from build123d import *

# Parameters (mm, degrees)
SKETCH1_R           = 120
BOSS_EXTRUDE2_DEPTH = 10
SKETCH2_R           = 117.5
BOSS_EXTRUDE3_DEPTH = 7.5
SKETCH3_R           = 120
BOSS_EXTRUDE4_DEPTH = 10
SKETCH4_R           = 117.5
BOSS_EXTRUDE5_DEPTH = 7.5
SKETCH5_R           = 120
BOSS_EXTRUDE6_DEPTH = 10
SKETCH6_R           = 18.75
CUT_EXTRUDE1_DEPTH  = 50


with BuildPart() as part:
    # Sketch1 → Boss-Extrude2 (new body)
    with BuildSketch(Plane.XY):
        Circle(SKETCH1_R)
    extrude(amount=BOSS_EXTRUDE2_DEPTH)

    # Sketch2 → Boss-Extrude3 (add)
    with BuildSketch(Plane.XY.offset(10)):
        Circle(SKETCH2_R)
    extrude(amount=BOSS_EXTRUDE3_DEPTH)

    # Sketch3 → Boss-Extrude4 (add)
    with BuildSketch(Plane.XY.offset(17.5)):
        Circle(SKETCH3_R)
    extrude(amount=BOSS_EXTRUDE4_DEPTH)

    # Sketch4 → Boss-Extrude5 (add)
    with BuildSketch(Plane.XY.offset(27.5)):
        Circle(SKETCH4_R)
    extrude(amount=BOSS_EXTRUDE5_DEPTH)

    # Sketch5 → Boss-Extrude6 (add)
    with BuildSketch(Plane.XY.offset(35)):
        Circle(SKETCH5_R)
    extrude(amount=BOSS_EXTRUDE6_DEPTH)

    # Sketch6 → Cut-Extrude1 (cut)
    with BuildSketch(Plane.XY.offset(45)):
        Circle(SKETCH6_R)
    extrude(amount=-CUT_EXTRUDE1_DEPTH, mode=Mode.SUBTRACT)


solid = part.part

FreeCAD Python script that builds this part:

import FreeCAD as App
import Part
import Sketcher
from FreeCAD import Vector
Q = App.Units.Quantity

doc = App.newDocument("Part")
params = doc.addObject("Spreadsheet::Sheet", "Params")
for row, (alias, value) in enumerate([
    ("sketch1_diameter", "240 mm"),
    ("pad1_length", "10 mm"),
    ("sketch2_diameter", "235 mm"),
    ("pad2_length", "7.5 mm"),
    ("sketch3_diameter", "240 mm"),
    ("pad3_length", "10 mm"),
    ("sketch4_diameter", "235 mm"),
    ("pad4_length", "7.5 mm"),
    ("sketch5_diameter", "240 mm"),
    ("pad5_length", "10 mm"),
    ("sketch6_diameter", "37.5 mm"),
    ("pocket1_length", "50 mm"),
], start=1):
    params.set(f"A{row}", alias)
    params.set(f"B{row}", "=" + value)
    params.setAlias(f"B{row}", alias)

body = doc.addObject("PartDesign::Body", "Body")

# Sketch on XY plane
sketch1 = body.newObject("Sketcher::SketchObject", "Sketch")
sketch1.AttachmentSupport = (doc.getObject("XY_Plane"), [""])
sketch1.MapMode = "FlatFace"
sketch1.addGeometry(Part.Circle(Vector(0, 0, 0), Vector(0, 0, 1), 120), False)
sketch1.addConstraint(Sketcher.Constraint("Coincident", 0, 3, -1, 1))
sketch1.addConstraint(Sketcher.Constraint("Diameter", 0, Q("240 mm")))
sketch1.setExpression("Constraints[1]", "Params.sketch1_diameter")
pad1 = body.newObject("PartDesign::Pad", "Pad")
pad1.Profile = sketch1
pad1.setExpression("Length", "Params.pad1_length")

# Sketch on XY plane
sketch2 = body.newObject("Sketcher::SketchObject", "Sketch001")
sketch2.AttachmentSupport = (doc.getObject("XY_Plane"), [""])
sketch2.MapMode = "FlatFace"
sketch2.AttachmentOffset = App.Placement(Vector(0, 0, 10), App.Rotation())
sketch2.addGeometry(Part.Circle(Vector(0, 0, 0), Vector(0, 0, 1), 118), False)
sketch2.addConstraint(Sketcher.Constraint("Coincident", 0, 3, -1, 1))
sketch2.addConstraint(Sketcher.Constraint("Diameter", 0, Q("235 mm")))
sketch2.setExpression("Constraints[1]", "Params.sketch2_diameter")
pad2 = body.newObject("PartDesign::Pad", "Pad001")
pad2.Profile = sketch2
pad2.setExpression("Length", "Params.pad2_length")

# Sketch on XY plane
sketch3 = body.newObject("Sketcher::SketchObject", "Sketch002")
sketch3.AttachmentSupport = (doc.getObject("XY_Plane"), [""])
sketch3.MapMode = "FlatFace"
sketch3.AttachmentOffset = App.Placement(Vector(0, 0, 17.5), App.Rotation())
sketch3.addGeometry(Part.Circle(Vector(0, 0, 0), Vector(0, 0, 1), 120), False)
sketch3.addConstraint(Sketcher.Constraint("Coincident", 0, 3, -1, 1))
sketch3.addConstraint(Sketcher.Constraint("Diameter", 0, Q("240 mm")))
sketch3.setExpression("Constraints[1]", "Params.sketch3_diameter")
pad3 = body.newObject("PartDesign::Pad", "Pad002")
pad3.Profile = sketch3
pad3.setExpression("Length", "Params.pad3_length")

# Sketch on XY plane
sketch4 = body.newObject("Sketcher::SketchObject", "Sketch003")
sketch4.AttachmentSupport = (doc.getObject("XY_Plane"), [""])
sketch4.MapMode = "FlatFace"
sketch4.AttachmentOffset = App.Placement(Vector(0, 0, 27.5), App.Rotation())
sketch4.addGeometry(Part.Circle(Vector(0, 0, 0), Vector(0, 0, 1), 118), False)
sketch4.addConstraint(Sketcher.Constraint("Coincident", 0, 3, -1, 1))
sketch4.addConstraint(Sketcher.Constraint("Diameter", 0, Q("235 mm")))
sketch4.setExpression("Constraints[1]", "Params.sketch4_diameter")
pad4 = body.newObject("PartDesign::Pad", "Pad003")
pad4.Profile = sketch4
pad4.setExpression("Length", "Params.pad4_length")

# Sketch on XY plane
sketch5 = body.newObject("Sketcher::SketchObject", "Sketch004")
sketch5.AttachmentSupport = (doc.getObject("XY_Plane"), [""])
sketch5.MapMode = "FlatFace"
sketch5.AttachmentOffset = App.Placement(Vector(0, 0, 35), App.Rotation())
sketch5.addGeometry(Part.Circle(Vector(0, 0, 0), Vector(0, 0, 1), 120), False)
sketch5.addConstraint(Sketcher.Constraint("Coincident", 0, 3, -1, 1))
sketch5.addConstraint(Sketcher.Constraint("Diameter", 0, Q("240 mm")))
sketch5.setExpression("Constraints[1]", "Params.sketch5_diameter")
pad5 = body.newObject("PartDesign::Pad", "Pad004")
pad5.Profile = sketch5
pad5.setExpression("Length", "Params.pad5_length")

# Sketch on XY plane
sketch6 = body.newObject("Sketcher::SketchObject", "Sketch005")
sketch6.AttachmentSupport = (doc.getObject("XY_Plane"), [""])
sketch6.MapMode = "FlatFace"
sketch6.AttachmentOffset = App.Placement(Vector(0, 0, 45), App.Rotation())
sketch6.addGeometry(Part.Circle(Vector(0, 0, 0), Vector(0, 0, 1), 19), False)
sketch6.addConstraint(Sketcher.Constraint("Coincident", 0, 3, -1, 1))
sketch6.addConstraint(Sketcher.Constraint("Diameter", 0, Q("37.5 mm")))
sketch6.setExpression("Constraints[1]", "Params.sketch6_diameter")
pocket1 = body.newObject("PartDesign::Pocket", "Pocket")
pocket1.Profile = sketch6
pocket1.setExpression("Length", "Params.pocket1_length")

doc.recompute()
